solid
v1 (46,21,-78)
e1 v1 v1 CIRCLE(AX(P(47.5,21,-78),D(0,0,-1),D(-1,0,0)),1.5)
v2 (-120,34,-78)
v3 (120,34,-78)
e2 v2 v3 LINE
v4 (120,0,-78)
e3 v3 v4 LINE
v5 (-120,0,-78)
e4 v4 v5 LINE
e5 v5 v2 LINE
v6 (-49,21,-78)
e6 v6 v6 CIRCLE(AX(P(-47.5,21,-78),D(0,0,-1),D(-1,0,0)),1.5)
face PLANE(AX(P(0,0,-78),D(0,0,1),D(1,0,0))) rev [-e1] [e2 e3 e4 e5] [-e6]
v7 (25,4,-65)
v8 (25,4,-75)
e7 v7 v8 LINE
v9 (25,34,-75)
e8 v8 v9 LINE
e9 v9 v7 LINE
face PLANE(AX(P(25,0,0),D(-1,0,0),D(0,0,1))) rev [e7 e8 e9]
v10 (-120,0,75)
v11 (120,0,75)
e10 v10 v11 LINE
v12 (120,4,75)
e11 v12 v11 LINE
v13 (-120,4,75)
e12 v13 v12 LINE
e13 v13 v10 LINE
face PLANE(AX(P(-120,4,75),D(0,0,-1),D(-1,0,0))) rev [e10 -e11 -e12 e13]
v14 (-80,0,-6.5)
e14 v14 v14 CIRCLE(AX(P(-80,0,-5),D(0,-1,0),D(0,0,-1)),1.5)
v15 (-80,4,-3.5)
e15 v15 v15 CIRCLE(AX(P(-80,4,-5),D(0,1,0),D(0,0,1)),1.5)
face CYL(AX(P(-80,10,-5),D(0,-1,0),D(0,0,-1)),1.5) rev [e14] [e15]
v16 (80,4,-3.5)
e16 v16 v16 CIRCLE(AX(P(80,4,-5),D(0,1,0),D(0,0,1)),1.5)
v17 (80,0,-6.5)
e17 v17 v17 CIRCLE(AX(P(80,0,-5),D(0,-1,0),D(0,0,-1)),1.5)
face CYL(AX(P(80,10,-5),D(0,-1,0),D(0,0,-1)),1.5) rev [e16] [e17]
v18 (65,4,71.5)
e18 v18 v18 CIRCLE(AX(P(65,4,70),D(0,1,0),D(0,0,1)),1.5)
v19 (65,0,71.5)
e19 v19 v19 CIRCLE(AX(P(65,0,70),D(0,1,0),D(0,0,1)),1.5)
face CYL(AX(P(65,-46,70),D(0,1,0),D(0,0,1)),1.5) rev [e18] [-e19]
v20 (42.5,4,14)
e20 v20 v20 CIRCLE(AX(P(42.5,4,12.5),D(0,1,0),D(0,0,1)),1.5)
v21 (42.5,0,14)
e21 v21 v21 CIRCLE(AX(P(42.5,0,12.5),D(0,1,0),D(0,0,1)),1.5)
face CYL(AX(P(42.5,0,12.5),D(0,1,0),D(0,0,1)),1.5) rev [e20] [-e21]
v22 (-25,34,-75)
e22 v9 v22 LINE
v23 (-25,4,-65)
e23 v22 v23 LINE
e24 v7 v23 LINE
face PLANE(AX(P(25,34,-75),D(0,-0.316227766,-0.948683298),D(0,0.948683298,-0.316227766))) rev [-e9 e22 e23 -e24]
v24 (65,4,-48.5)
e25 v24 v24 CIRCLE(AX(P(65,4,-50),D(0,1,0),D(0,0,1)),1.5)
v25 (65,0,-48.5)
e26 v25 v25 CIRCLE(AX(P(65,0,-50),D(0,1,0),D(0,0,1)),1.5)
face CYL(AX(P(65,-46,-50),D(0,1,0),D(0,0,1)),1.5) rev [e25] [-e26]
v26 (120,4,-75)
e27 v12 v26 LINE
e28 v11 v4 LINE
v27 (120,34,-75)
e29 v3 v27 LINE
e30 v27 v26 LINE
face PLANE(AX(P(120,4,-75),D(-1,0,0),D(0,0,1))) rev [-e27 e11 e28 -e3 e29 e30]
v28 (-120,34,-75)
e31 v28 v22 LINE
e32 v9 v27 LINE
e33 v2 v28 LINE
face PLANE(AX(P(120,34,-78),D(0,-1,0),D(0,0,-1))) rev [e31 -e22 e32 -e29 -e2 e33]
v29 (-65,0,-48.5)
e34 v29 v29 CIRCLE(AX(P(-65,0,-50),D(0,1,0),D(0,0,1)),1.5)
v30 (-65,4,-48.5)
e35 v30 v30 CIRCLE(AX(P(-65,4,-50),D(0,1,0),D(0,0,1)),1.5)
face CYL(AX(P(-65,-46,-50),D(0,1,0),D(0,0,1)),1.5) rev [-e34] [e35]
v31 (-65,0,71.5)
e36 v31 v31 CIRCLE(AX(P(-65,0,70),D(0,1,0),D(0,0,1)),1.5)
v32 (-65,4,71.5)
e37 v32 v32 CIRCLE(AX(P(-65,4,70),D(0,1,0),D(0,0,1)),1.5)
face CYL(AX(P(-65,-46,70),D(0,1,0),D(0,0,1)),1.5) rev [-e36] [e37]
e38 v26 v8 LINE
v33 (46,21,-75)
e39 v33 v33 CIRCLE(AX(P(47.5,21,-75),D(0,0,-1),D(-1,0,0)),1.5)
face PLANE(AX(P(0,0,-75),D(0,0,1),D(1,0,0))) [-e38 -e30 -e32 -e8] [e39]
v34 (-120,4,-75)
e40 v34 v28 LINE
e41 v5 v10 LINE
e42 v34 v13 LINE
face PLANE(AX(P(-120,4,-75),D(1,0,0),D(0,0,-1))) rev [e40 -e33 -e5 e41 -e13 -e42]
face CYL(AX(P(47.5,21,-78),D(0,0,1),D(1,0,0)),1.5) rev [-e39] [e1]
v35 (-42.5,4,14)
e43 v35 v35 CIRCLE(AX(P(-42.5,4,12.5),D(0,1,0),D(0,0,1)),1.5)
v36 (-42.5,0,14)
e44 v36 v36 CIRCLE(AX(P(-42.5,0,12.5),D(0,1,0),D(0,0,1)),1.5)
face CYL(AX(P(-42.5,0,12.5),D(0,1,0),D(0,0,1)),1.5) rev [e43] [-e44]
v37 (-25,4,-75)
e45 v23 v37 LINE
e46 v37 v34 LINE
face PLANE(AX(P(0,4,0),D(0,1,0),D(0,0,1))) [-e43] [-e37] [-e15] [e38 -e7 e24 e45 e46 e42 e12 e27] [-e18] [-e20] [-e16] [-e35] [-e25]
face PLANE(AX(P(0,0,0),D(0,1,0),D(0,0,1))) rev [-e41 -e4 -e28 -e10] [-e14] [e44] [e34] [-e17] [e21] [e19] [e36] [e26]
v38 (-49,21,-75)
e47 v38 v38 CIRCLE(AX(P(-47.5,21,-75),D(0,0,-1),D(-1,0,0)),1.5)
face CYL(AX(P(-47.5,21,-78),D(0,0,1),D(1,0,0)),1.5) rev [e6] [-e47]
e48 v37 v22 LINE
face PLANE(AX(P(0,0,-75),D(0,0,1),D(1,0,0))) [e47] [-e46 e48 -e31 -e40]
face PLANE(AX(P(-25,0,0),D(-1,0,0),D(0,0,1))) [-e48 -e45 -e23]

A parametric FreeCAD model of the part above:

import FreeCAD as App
import Part
import Sketcher
from FreeCAD import Vector
Q = App.Units.Quantity

doc = App.newDocument("Part")
body = doc.addObject("PartDesign::Body", "Body")

# Sketch on XZ plane
sketch1 = body.newObject("Sketcher::SketchObject", "Sketch")
sketch1.AttachmentSupport = (doc.getObject("XZ_Plane"), [""])
sketch1.MapMode = "FlatFace"
sketch1.addGeometry([
    Part.LineSegment(Vector(-120, -75, 0), Vector(-120, 75, 0)),
    Part.LineSegment(Vector(-120, 75, 0), Vector(120, 75, 0)),
    Part.LineSegment(Vector(120, 75, 0), Vector(120, -75, 0)),
    Part.LineSegment(Vector(120, -75, 0), Vector(-120, -75, 0)),
], False)
sketch1.addConstraint([
    Sketcher.Constraint("Coincident", 0, 2, 1, 1),
    Sketcher.Constraint("Coincident", 1, 2, 2, 1),
    Sketcher.Constraint("Coincident", 2, 2, 3, 1),
    Sketcher.Constraint("Coincident", 3, 2, 0, 1),
    Sketcher.Constraint("Vertical", 0),
    Sketcher.Constraint("Horizontal", 1),
    Sketcher.Constraint("Vertical", 2),
    Sketcher.Constraint("Horizontal", 3),
    Sketcher.Constraint("Symmetric", 0, 2, 2, 2, -1, 1),
    Sketcher.Constraint("DistanceX", 1, 1, 1, 2, Q("240 mm")),
    Sketcher.Constraint("DistanceY", 0, 1, 0, 2, Q("150 mm")),
])
pad1 = body.newObject("PartDesign::Pad", "Pad")
pad1.Profile = sketch1
pad1.Length = 4
pad1.Reversed = True

# Sketch on XZ plane
sketch2 = body.newObject("Sketcher::SketchObject", "Sketch001")
sketch2.AttachmentSupport = (doc.getObject("XZ_Plane"), [""])
sketch2.MapMode = "FlatFace"
sketch2.AttachmentOffset = App.Placement(Vector(0, 0, -4), App.Rotation())
sketch2.addGeometry([
    Part.Circle(Vector(-65, -50, 0), Vector(0, 0, 1), 1.5),
    Part.Circle(Vector(65, -50, 0), Vector(0, 0, 1), 1.5),
    Part.Circle(Vector(65, 70, 0), Vector(0, 0, 1), 1.5),
    Part.Circle(Vector(-65, 70, 0), Vector(0, 0, 1), 1.5),
], False)
sketch2.addConstraint([
    Sketcher.Constraint("Equal", 0, 1),
    Sketcher.Constraint("Equal", 1, 2),
    Sketcher.Constraint("Equal", 2, 3),
    Sketcher.Constraint("Symmetric", 0, 3, 1, 3, -2),
    Sketcher.Constraint("Symmetric", 2, 3, 3, 3, -2),
    Sketcher.Constraint("Vertical", 1, 3, 2, 3),
    Sketcher.Constraint("Diameter", 0, Q("3 mm")),
    Sketcher.Constraint("DistanceX", 0, 3, -1, 1, Q("65 mm")),
    Sketcher.Constraint("DistanceY", 0, 3, -1, 1, Q("50 mm")),
    Sketcher.Constraint("DistanceY", -1, 1, 2, 3, Q("70 mm")),
])
pocket1 = body.newObject("PartDesign::Pocket", "Pocket")
pocket1.Profile = sketch2
pocket1.Length = 50
pocket1.Reversed = True

# Sketch on XY plane
sketch3 = body.newObject("Sketcher::SketchObject", "Sketch002")
sketch3.AttachmentSupport = (doc.getObject("XY_Plane"), [""])
sketch3.MapMode = "FlatFace"
sketch3.AttachmentOffset = App.Placement(Vector(0, 0, -75), App.Rotation())
sketch3.addGeometry([
    Part.LineSegment(Vector(120, 34, 0), Vector(120, 0, 0)),  # 0
    Part.LineSegment(Vector(120, 0, 0), Vector(-120, 0, 0)),  # 1
    Part.LineSegment(Vector(-120, 0, 0), Vector(-120, 34, 0)),  # 2
    Part.LineSegment(Vector(-120, 34, 0), Vector(120, 34, 0)),  # 3
    Part.Circle(Vector(47.5, 21, 0), Vector(0, 0, 1), 1.5),  # 4
    Part.Circle(Vector(-47.5, 21, 0), Vector(0, 0, 1), 1.5),  # 5
], False)
sketch3.addConstraint([
    Sketcher.Constraint("Coincident", 0, 2, 1, 1),
    Sketcher.Constraint("Coincident", 1, 2, 2, 1),
    Sketcher.Constraint("Coincident", 2, 2, 3, 1),
    Sketcher.Constraint("Coincident", 3, 2, 0, 1),
    Sketcher.Constraint("Vertical", 0),
    Sketcher.Constraint("Horizontal", 1),
    Sketcher.Constraint("Vertical", 2),
    Sketcher.Constraint("Horizontal", 3),
    Sketcher.Constraint("Equal", 4, 5),
    Sketcher.Constraint("Symmetric", 0, 2, 1, 2, -1, 1),
    Sketcher.Constraint("Symmetric", 4, 3, 5, 3, -2),
    Sketcher.Constraint("Diameter", 4, Q("3 mm")),
    Sketcher.Constraint("DistanceX", 1, 2, 1, 1, Q("240 mm")),
    Sketcher.Constraint("DistanceY", 0, 2, 0, 1, Q("34 mm")),
    Sketcher.Constraint("DistanceY", -1, 1, 4, 3, Q("21 mm")),
    Sketcher.Constraint("DistanceX", 5, 3, 4, 3, Q("95 mm")),
])
pad2 = body.newObject("PartDesign::Pad", "Pad001")
pad2.Profile = sketch3
pad2.Length = 3
pad2.Reversed = True

# Sketch on YZ plane
sketch4 = body.newObject("Sketcher::SketchObject", "Sketch003")
sketch4.AttachmentSupport = (doc.getObject("YZ_Plane"), [""])
sketch4.MapMode = "FlatFace"
sketch4.addGeometry([
    Part.LineSegment(Vector(34, -75, 0), Vector(4, -65, 0)),
    Part.LineSegment(Vector(4, -65, 0), Vector(4, -75, 0)),
    Part.LineSegment(Vector(4, -75, 0), Vector(34, -75, 0)),
], False)
sketch4.addConstraint([
    Sketcher.Constraint("Coincident", 0, 2, 1, 1),
    Sketcher.Constraint("Coincident", 1, 2, 2, 1),
    Sketcher.Constraint("Coincident", 2, 2, 0, 1),
    Sketcher.Constraint("Vertical", 1),
    Sketcher.Constraint("Horizontal", 2),
    Sketcher.Constraint("DistanceX", 2, 1, 2, 2, Q("30 mm")),
    Sketcher.Constraint("DistanceY", 1, 2, 1, 1, Q("10 mm")),
    Sketcher.Constraint("DistanceX", -1, 1, 0, 2, Q("4 mm")),
    Sketcher.Constraint("DistanceY", 0, 2, -1, 1, Q("65 mm")),
])
pad3 = body.newObject("PartDesign::Pad", "Pad002")
pad3.Profile = sketch4
pad3.Length = 50
pad3.Midplane = True

# Sketch on XZ plane
sketch5 = body.newObject("Sketcher::SketchObject", "Sketch004")
sketch5.AttachmentSupport = (doc.getObject("XZ_Plane"), [""])
sketch5.MapMode = "FlatFace"
sketch5.AttachmentOffset = App.Placement(Vector(0, 0, -4), App.Rotation())
sketch5.addGeometry([
    Part.Circle(Vector(42.5, 12.5, 0), Vector(0, 0, 1), 1.5),
    Part.Circle(Vector(-42.5, 12.5, 0), Vector(0, 0, 1), 1.5),
], False)
sketch5.addConstraint([
    Sketcher.Constraint("Equal", 0, 1),
    Sketcher.Constraint("Symmetric", 0, 3, 1, 3, -2),
    Sketcher.Constraint("Diameter", 0, Q("3 mm")),
    Sketcher.Constraint("DistanceX", 1, 3, 0, 3, Q("85 mm")),
    Sketcher.Constraint("DistanceY", -1, 1, 0, 3, Q("12.5 mm")),
])
pocket2 = body.newObject("PartDesign::Pocket", "Pocket001")
pocket2.Profile = sketch5
pocket2.Type = "ThroughAll"
pocket2.Reversed = True

# Sketch on XZ plane
sketch6 = body.newObject("Sketcher::SketchObject", "Sketch005")
sketch6.AttachmentSupport = (doc.getObject("XZ_Plane"), [""])
sketch6.MapMode = "FlatFace"
sketch6.addGeometry([
    Part.Circle(Vector(80, -5, 0), Vector(0, 0, 1), 1.5),
    Part.Circle(Vector(-80, -5, 0), Vector(0, 0, 1), 1.5),
], False)
sketch6.addConstraint([
    Sketcher.Constraint("Equal", 0, 1),
    Sketcher.Constraint("Symmetric", 0, 3, 1, 3, -2),
    Sketcher.Constraint("Diameter", 0, Q("3 mm")),
    Sketcher.Constraint("DistanceX", -1, 1, 0, 3, Q("80 mm")),
    Sketcher.Constraint("DistanceY", 0, 3, -1, 1, Q("5 mm")),
])
pocket3 = body.newObject("PartDesign::Pocket", "Pocket002")
pocket3.Profile = sketch6
pocket3.Length = 10

doc.recompute()
